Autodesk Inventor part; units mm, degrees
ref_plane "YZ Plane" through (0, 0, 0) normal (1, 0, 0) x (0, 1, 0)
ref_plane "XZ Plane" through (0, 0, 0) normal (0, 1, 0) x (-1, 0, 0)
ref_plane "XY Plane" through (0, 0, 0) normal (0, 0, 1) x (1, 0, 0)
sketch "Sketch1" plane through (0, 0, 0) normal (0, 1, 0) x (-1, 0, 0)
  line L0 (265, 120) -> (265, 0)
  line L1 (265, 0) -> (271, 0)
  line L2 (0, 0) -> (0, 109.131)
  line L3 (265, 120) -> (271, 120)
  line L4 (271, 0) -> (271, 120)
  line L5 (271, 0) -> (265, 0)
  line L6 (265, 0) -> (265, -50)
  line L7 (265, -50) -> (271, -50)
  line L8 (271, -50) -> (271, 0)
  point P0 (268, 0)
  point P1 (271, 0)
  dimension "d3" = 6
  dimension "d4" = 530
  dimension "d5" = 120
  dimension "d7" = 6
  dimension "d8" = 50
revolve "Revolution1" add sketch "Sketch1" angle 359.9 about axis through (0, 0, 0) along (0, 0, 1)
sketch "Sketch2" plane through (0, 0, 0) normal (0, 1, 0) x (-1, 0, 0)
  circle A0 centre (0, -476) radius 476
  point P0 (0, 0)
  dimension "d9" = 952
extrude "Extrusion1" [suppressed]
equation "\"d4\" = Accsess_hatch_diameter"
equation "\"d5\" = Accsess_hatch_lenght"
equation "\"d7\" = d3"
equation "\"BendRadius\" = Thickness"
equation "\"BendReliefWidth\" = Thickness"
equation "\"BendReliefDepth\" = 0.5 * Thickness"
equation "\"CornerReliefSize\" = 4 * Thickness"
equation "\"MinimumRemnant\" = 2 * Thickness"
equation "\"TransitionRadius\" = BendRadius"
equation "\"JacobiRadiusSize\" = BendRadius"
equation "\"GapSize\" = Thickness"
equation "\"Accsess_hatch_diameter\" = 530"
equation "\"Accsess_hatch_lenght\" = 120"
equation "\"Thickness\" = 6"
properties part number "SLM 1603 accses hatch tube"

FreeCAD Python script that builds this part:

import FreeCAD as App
import Part
import Sketcher

V = App.Vector


def add_polygon(sketch, points):
    """Adds a closed chain of lines whose ends are joined by coincident constraints."""
    first, n = sketch.GeometryCount, len(points)
    for a, b in zip(points, points[1:] + points[:1]):
        sketch.addGeometry(Part.LineSegment(App.Vector(*a, 0), App.Vector(*b, 0)), False)
    for i in range(n):
        sketch.addConstraint(Sketcher.Constraint("Coincident", first + i, 2, first + (i + 1) % n, 1))

doc = App.newDocument("Part")
body = doc.addObject("PartDesign::Body", "Body")

sketch1 = body.newObject("Sketcher::SketchObject", "Sketch")
sketch1.AttachmentSupport = (doc.getObject("XZ_Plane"), [""])
sketch1.MapMode = "FlatFace"
add_polygon(sketch1, [(-271, 120), (-265, 120), (-265, -50), (-271, -50)])
sketch1.addConstraint([
    Sketcher.Constraint("Horizontal", 0),
    Sketcher.Constraint("Vertical", 1),
    Sketcher.Constraint("Horizontal", 2),
    Sketcher.Constraint("Vertical", 3),
    Sketcher.Constraint("DistanceX", 0, 1, 0, 2, 6.0),
    Sketcher.Constraint("DistanceY", -1, 1, 0, 2, 120.0),
    Sketcher.Constraint("DistanceY", 1, 2, -1, 1, 50.0),
    Sketcher.Constraint("DistanceX", 0, 2, -1, 1, 265.0),
])
revolution = body.newObject("PartDesign::Revolution", "Revolution")
revolution.Profile = sketch1
revolution.ReferenceAxis = (sketch1, ["V_Axis"])
revolution.Angle = 359.9

doc.recompute()
